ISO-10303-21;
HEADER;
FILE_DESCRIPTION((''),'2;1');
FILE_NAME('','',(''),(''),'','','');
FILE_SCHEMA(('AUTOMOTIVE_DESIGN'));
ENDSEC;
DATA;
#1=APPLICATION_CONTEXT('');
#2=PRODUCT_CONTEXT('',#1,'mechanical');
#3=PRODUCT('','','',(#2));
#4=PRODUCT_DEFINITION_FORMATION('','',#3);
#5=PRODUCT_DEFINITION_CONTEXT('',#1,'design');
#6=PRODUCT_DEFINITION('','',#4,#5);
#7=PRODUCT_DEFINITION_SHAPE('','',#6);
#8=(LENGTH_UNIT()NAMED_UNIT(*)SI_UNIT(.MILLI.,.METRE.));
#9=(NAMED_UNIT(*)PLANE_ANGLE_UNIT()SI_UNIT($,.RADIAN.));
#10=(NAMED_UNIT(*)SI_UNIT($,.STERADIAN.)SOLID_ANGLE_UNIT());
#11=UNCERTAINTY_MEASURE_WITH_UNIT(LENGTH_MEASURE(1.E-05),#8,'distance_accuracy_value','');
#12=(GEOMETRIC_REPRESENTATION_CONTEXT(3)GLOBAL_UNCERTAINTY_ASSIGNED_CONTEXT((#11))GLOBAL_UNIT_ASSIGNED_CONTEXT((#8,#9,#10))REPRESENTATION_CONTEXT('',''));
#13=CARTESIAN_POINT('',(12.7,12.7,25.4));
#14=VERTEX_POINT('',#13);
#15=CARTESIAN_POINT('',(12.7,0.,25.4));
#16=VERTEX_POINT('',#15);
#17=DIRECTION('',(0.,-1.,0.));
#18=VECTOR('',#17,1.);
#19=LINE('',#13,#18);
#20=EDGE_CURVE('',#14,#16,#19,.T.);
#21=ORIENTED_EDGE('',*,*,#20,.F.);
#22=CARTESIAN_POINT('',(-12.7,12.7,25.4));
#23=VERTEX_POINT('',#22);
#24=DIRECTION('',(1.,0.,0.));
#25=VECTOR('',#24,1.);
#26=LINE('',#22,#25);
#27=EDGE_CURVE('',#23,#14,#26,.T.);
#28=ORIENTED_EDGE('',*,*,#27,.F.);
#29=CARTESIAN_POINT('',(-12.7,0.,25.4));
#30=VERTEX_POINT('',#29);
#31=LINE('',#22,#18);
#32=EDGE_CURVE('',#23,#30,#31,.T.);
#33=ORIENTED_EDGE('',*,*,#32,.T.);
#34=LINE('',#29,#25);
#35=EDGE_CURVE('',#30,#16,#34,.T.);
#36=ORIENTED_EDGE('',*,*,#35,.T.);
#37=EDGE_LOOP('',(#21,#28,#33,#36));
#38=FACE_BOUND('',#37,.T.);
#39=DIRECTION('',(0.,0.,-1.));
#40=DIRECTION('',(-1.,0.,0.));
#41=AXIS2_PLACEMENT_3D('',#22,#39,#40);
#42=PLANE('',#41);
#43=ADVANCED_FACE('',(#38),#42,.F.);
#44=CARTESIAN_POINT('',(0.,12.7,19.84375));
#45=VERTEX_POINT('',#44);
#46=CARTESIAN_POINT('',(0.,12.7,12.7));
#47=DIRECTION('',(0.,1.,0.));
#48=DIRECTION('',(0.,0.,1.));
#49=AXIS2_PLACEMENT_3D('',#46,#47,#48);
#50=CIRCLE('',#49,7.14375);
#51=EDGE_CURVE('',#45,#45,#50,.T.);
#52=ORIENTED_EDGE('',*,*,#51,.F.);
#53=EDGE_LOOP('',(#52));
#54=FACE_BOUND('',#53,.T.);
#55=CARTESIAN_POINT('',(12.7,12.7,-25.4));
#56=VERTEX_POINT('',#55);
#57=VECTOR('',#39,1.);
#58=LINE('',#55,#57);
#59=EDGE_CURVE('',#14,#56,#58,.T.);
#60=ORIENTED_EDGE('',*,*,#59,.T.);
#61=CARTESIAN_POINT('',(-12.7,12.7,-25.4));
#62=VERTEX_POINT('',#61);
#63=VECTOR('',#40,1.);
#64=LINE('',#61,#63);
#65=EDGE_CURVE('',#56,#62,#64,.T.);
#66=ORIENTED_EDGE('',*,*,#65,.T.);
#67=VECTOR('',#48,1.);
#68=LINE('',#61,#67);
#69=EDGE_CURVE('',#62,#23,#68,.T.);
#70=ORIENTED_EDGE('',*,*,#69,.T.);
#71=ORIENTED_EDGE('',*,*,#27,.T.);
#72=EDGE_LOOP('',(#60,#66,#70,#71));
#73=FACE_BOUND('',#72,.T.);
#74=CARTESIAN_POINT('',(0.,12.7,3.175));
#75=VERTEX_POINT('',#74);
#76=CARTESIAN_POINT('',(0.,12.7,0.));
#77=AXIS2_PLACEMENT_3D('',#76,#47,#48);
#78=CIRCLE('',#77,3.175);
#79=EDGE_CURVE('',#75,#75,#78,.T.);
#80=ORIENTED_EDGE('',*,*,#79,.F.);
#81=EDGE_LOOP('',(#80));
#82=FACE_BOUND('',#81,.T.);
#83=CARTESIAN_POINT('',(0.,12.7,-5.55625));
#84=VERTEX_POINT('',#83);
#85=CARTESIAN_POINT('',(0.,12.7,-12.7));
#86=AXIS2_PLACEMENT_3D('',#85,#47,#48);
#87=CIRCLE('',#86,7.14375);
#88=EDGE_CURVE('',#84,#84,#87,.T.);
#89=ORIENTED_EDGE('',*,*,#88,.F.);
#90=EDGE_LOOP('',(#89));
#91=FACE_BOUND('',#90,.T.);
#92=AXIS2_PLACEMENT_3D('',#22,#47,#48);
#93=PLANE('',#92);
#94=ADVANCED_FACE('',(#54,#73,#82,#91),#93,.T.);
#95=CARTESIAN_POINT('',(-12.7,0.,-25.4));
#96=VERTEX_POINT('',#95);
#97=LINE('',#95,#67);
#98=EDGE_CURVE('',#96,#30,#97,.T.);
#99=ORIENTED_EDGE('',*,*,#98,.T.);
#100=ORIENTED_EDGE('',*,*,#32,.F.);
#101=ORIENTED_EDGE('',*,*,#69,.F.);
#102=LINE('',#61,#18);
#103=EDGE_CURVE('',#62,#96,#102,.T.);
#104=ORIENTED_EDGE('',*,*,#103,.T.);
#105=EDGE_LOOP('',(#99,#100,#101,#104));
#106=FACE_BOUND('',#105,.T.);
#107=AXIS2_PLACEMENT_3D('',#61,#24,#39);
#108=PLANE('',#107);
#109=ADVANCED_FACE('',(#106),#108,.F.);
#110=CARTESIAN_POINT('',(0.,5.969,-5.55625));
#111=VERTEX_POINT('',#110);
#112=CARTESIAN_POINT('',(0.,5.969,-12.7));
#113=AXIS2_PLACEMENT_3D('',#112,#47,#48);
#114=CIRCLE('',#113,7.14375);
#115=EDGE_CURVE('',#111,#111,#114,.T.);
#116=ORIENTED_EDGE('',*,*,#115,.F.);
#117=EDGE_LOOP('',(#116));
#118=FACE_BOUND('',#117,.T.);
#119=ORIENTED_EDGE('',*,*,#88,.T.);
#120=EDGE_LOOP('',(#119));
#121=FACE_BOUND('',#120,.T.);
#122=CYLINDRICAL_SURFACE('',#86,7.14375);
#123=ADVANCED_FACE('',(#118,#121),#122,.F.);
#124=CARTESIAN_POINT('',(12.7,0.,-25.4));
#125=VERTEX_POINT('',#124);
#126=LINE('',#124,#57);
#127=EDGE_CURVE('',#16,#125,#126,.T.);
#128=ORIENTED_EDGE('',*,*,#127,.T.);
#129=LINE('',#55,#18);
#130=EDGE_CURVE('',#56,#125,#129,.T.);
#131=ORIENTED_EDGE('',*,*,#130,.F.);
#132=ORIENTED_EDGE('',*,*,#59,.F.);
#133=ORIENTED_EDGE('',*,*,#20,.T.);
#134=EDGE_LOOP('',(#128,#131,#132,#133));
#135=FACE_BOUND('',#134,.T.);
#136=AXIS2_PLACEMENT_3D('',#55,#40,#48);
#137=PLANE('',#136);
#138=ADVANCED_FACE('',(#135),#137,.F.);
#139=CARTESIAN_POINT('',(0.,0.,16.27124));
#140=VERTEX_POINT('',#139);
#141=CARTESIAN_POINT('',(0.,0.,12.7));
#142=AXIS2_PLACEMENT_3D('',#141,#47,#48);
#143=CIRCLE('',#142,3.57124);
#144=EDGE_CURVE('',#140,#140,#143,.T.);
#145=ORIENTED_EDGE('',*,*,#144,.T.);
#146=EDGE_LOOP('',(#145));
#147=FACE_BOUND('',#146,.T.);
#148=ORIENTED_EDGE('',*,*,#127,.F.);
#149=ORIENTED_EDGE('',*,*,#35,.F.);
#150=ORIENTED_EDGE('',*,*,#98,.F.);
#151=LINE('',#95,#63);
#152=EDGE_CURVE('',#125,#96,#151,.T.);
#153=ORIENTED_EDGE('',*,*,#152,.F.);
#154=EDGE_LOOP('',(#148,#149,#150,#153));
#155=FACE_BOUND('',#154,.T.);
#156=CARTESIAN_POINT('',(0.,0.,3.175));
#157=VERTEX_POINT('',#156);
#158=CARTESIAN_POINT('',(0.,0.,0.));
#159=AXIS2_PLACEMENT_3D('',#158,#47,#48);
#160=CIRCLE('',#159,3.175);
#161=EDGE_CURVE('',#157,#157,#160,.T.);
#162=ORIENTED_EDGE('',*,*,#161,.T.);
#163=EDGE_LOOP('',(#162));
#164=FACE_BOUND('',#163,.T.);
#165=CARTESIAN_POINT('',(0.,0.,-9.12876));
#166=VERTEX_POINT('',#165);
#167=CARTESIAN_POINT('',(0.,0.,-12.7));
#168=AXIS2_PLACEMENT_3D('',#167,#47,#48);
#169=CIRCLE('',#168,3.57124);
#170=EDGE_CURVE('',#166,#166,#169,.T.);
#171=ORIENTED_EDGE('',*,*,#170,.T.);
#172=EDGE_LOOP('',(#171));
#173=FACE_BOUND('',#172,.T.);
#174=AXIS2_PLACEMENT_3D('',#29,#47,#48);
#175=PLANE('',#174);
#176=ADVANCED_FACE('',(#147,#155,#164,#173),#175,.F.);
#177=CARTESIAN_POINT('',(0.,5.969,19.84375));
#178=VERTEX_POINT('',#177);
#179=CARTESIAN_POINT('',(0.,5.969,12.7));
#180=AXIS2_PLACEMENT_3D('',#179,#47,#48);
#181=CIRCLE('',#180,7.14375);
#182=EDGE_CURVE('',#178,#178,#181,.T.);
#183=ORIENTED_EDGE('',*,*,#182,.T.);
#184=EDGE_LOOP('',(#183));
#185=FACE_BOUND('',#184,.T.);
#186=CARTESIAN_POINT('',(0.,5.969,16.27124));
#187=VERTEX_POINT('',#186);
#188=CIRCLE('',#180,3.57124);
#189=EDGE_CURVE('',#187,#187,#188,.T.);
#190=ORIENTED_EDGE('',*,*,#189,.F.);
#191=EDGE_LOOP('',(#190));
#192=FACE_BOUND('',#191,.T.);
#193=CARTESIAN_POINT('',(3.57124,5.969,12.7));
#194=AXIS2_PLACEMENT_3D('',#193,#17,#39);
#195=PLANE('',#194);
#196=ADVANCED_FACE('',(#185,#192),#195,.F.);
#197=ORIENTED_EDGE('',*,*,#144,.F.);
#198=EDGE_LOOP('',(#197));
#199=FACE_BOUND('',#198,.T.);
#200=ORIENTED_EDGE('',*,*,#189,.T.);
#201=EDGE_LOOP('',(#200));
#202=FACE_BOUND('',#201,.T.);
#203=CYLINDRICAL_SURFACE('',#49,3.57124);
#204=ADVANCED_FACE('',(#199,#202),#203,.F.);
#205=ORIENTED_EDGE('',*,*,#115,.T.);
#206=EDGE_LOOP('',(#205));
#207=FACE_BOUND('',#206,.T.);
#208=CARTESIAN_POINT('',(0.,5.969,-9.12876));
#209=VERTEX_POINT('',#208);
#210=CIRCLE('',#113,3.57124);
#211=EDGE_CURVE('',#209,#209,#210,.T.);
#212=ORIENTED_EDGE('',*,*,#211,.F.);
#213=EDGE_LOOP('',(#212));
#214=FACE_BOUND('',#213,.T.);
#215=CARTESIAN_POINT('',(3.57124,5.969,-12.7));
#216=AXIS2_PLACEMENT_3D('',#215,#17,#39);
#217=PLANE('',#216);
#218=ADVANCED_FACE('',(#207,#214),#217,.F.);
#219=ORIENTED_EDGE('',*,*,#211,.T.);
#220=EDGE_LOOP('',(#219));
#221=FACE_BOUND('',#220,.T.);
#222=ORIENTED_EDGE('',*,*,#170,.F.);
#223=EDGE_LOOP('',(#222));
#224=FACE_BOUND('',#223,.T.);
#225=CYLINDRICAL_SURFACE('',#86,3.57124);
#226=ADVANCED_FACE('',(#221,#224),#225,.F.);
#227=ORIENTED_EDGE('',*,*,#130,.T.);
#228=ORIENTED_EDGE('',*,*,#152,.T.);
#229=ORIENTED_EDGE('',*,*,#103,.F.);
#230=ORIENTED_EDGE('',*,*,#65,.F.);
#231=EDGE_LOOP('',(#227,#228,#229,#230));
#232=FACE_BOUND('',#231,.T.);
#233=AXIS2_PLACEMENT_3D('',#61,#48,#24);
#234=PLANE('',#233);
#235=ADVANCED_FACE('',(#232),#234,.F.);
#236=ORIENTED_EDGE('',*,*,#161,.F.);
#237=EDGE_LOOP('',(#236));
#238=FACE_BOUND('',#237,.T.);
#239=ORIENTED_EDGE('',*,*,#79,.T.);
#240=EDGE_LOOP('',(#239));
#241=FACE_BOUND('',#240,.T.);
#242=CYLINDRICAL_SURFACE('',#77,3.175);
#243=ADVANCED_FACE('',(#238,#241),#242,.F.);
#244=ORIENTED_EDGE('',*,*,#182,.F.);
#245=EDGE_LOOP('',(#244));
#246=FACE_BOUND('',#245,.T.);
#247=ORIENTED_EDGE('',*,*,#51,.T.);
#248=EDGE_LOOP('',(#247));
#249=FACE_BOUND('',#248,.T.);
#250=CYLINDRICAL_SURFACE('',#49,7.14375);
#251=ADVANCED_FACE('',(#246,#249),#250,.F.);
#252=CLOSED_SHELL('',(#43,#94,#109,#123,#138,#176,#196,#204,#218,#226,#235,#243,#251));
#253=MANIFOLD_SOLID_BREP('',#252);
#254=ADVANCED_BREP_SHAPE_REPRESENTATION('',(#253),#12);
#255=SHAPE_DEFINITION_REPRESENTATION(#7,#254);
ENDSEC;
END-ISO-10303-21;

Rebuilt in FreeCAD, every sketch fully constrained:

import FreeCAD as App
import Part
import Sketcher
from FreeCAD import Vector
Q = App.Units.Quantity


def add_polygon(sketch, points):
    """Adds a closed chain of lines whose ends are joined by coincident constraints."""
    first, n = sketch.GeometryCount, len(points)
    for a, b in zip(points, points[1:] + points[:1]):
        sketch.addGeometry(Part.LineSegment(App.Vector(*a, 0), App.Vector(*b, 0)), False)
    for i in range(n):
        sketch.addConstraint(Sketcher.Constraint("Coincident", first + i, 2, first + (i + 1) % n, 1))

doc = App.newDocument("Part")
body = doc.addObject("PartDesign::Body", "Body")

# Sketch on XZ plane
sketch1 = body.newObject("Sketcher::SketchObject", "Sketch")
sketch1.AttachmentSupport = (doc.getObject("XZ_Plane"), [""])
sketch1.MapMode = "FlatFace"
add_polygon(sketch1, [(-13, -25), (-13, 25), (13, 25), (13, -25)])  # lines 0-3
sketch1.addConstraint(Sketcher.Constraint("Vertical", 0))
sketch1.addConstraint(Sketcher.Constraint("Horizontal", 1))
sketch1.addConstraint(Sketcher.Constraint("Vertical", 2))
sketch1.addConstraint(Sketcher.Constraint("Horizontal", 3))
sketch1.addConstraint(Sketcher.Constraint("Symmetric", 0, 2, 2, 2, -1, 1))
sketch1.addConstraint(Sketcher.Constraint("DistanceX", 1, 1, 1, 2, Q("1 in")))
sketch1.addConstraint(Sketcher.Constraint("DistanceY", 0, 1, 0, 2, Q("2 in")))
pad1 = body.newObject("PartDesign::Pad", "Pad")
pad1.Profile = sketch1
pad1.Length = Q("0.5 in")
pad1.Reversed = True

# Sketch on XZ plane
sketch2 = body.newObject("Sketcher::SketchObject", "Sketch001")
sketch2.AttachmentSupport = (doc.getObject("XZ_Plane"), [""])
sketch2.MapMode = "FlatFace"
sketch2.AttachmentOffset = App.Placement(Vector(0, 0, -0.5 * 25.4), App.Rotation())
sketch2.addGeometry(Part.Circle(Vector(0, 0, 0), Vector(0, 0, 1), 3.2), False)
sketch2.addConstraint(Sketcher.Constraint("Coincident", 0, 3, -1, 1))
sketch2.addConstraint(Sketcher.Constraint("Diameter", 0, Q("0.25 in")))
doc.recompute()
hole = body.newObject("PartDesign::Hole", "Hole")
hole.Profile = sketch2
hole.ThreadType = "None"
hole.Diameter = Q("0.25 in")
hole.DepthType = "ThroughAll"
hole.Reversed = True

# Sketch on XZ plane
sketch3 = body.newObject("Sketcher::SketchObject", "Sketch002")
sketch3.AttachmentSupport = (doc.getObject("XZ_Plane"), [""])
sketch3.MapMode = "FlatFace"
sketch3.AttachmentOffset = App.Placement(Vector(0, 0, -0.5 * 25.4), App.Rotation())
sketch3.addGeometry(Part.Circle(Vector(0, -12.7, 0), Vector(0, 0, 1), 3.6), False)
sketch3.addGeometry(Part.Circle(Vector(0, 12.7, 0), Vector(0, 0, 1), 3.6), False)
sketch3.addConstraint(Sketcher.Constraint("Equal", 0, 1))
sketch3.addConstraint(Sketcher.Constraint("Symmetric", 0, 3, 1, 3, -1, 1))
sketch3.addConstraint(Sketcher.Constraint("PointOnObject", 0, 3, -2))
sketch3.addConstraint(Sketcher.Constraint("DistanceY", 0, 3, 1, 3, Q("1 in")))
sketch3.addConstraint(Sketcher.Constraint("Diameter", 0, Q("0.2812 in")))
doc.recompute()
hole2 = body.newObject("PartDesign::Hole", "Hole001")
hole2.Profile = sketch3
hole2.ThreadType = "None"
hole2.Diameter = Q("0.2812 in")
hole2.DepthType = "ThroughAll"
hole2.HoleCutType = "Counterbore"
hole2.HoleCutDiameter = Q("0.5625 in")
hole2.HoleCutDepth = Q("0.265 in")
hole2.Reversed = True

doc.recompute()
